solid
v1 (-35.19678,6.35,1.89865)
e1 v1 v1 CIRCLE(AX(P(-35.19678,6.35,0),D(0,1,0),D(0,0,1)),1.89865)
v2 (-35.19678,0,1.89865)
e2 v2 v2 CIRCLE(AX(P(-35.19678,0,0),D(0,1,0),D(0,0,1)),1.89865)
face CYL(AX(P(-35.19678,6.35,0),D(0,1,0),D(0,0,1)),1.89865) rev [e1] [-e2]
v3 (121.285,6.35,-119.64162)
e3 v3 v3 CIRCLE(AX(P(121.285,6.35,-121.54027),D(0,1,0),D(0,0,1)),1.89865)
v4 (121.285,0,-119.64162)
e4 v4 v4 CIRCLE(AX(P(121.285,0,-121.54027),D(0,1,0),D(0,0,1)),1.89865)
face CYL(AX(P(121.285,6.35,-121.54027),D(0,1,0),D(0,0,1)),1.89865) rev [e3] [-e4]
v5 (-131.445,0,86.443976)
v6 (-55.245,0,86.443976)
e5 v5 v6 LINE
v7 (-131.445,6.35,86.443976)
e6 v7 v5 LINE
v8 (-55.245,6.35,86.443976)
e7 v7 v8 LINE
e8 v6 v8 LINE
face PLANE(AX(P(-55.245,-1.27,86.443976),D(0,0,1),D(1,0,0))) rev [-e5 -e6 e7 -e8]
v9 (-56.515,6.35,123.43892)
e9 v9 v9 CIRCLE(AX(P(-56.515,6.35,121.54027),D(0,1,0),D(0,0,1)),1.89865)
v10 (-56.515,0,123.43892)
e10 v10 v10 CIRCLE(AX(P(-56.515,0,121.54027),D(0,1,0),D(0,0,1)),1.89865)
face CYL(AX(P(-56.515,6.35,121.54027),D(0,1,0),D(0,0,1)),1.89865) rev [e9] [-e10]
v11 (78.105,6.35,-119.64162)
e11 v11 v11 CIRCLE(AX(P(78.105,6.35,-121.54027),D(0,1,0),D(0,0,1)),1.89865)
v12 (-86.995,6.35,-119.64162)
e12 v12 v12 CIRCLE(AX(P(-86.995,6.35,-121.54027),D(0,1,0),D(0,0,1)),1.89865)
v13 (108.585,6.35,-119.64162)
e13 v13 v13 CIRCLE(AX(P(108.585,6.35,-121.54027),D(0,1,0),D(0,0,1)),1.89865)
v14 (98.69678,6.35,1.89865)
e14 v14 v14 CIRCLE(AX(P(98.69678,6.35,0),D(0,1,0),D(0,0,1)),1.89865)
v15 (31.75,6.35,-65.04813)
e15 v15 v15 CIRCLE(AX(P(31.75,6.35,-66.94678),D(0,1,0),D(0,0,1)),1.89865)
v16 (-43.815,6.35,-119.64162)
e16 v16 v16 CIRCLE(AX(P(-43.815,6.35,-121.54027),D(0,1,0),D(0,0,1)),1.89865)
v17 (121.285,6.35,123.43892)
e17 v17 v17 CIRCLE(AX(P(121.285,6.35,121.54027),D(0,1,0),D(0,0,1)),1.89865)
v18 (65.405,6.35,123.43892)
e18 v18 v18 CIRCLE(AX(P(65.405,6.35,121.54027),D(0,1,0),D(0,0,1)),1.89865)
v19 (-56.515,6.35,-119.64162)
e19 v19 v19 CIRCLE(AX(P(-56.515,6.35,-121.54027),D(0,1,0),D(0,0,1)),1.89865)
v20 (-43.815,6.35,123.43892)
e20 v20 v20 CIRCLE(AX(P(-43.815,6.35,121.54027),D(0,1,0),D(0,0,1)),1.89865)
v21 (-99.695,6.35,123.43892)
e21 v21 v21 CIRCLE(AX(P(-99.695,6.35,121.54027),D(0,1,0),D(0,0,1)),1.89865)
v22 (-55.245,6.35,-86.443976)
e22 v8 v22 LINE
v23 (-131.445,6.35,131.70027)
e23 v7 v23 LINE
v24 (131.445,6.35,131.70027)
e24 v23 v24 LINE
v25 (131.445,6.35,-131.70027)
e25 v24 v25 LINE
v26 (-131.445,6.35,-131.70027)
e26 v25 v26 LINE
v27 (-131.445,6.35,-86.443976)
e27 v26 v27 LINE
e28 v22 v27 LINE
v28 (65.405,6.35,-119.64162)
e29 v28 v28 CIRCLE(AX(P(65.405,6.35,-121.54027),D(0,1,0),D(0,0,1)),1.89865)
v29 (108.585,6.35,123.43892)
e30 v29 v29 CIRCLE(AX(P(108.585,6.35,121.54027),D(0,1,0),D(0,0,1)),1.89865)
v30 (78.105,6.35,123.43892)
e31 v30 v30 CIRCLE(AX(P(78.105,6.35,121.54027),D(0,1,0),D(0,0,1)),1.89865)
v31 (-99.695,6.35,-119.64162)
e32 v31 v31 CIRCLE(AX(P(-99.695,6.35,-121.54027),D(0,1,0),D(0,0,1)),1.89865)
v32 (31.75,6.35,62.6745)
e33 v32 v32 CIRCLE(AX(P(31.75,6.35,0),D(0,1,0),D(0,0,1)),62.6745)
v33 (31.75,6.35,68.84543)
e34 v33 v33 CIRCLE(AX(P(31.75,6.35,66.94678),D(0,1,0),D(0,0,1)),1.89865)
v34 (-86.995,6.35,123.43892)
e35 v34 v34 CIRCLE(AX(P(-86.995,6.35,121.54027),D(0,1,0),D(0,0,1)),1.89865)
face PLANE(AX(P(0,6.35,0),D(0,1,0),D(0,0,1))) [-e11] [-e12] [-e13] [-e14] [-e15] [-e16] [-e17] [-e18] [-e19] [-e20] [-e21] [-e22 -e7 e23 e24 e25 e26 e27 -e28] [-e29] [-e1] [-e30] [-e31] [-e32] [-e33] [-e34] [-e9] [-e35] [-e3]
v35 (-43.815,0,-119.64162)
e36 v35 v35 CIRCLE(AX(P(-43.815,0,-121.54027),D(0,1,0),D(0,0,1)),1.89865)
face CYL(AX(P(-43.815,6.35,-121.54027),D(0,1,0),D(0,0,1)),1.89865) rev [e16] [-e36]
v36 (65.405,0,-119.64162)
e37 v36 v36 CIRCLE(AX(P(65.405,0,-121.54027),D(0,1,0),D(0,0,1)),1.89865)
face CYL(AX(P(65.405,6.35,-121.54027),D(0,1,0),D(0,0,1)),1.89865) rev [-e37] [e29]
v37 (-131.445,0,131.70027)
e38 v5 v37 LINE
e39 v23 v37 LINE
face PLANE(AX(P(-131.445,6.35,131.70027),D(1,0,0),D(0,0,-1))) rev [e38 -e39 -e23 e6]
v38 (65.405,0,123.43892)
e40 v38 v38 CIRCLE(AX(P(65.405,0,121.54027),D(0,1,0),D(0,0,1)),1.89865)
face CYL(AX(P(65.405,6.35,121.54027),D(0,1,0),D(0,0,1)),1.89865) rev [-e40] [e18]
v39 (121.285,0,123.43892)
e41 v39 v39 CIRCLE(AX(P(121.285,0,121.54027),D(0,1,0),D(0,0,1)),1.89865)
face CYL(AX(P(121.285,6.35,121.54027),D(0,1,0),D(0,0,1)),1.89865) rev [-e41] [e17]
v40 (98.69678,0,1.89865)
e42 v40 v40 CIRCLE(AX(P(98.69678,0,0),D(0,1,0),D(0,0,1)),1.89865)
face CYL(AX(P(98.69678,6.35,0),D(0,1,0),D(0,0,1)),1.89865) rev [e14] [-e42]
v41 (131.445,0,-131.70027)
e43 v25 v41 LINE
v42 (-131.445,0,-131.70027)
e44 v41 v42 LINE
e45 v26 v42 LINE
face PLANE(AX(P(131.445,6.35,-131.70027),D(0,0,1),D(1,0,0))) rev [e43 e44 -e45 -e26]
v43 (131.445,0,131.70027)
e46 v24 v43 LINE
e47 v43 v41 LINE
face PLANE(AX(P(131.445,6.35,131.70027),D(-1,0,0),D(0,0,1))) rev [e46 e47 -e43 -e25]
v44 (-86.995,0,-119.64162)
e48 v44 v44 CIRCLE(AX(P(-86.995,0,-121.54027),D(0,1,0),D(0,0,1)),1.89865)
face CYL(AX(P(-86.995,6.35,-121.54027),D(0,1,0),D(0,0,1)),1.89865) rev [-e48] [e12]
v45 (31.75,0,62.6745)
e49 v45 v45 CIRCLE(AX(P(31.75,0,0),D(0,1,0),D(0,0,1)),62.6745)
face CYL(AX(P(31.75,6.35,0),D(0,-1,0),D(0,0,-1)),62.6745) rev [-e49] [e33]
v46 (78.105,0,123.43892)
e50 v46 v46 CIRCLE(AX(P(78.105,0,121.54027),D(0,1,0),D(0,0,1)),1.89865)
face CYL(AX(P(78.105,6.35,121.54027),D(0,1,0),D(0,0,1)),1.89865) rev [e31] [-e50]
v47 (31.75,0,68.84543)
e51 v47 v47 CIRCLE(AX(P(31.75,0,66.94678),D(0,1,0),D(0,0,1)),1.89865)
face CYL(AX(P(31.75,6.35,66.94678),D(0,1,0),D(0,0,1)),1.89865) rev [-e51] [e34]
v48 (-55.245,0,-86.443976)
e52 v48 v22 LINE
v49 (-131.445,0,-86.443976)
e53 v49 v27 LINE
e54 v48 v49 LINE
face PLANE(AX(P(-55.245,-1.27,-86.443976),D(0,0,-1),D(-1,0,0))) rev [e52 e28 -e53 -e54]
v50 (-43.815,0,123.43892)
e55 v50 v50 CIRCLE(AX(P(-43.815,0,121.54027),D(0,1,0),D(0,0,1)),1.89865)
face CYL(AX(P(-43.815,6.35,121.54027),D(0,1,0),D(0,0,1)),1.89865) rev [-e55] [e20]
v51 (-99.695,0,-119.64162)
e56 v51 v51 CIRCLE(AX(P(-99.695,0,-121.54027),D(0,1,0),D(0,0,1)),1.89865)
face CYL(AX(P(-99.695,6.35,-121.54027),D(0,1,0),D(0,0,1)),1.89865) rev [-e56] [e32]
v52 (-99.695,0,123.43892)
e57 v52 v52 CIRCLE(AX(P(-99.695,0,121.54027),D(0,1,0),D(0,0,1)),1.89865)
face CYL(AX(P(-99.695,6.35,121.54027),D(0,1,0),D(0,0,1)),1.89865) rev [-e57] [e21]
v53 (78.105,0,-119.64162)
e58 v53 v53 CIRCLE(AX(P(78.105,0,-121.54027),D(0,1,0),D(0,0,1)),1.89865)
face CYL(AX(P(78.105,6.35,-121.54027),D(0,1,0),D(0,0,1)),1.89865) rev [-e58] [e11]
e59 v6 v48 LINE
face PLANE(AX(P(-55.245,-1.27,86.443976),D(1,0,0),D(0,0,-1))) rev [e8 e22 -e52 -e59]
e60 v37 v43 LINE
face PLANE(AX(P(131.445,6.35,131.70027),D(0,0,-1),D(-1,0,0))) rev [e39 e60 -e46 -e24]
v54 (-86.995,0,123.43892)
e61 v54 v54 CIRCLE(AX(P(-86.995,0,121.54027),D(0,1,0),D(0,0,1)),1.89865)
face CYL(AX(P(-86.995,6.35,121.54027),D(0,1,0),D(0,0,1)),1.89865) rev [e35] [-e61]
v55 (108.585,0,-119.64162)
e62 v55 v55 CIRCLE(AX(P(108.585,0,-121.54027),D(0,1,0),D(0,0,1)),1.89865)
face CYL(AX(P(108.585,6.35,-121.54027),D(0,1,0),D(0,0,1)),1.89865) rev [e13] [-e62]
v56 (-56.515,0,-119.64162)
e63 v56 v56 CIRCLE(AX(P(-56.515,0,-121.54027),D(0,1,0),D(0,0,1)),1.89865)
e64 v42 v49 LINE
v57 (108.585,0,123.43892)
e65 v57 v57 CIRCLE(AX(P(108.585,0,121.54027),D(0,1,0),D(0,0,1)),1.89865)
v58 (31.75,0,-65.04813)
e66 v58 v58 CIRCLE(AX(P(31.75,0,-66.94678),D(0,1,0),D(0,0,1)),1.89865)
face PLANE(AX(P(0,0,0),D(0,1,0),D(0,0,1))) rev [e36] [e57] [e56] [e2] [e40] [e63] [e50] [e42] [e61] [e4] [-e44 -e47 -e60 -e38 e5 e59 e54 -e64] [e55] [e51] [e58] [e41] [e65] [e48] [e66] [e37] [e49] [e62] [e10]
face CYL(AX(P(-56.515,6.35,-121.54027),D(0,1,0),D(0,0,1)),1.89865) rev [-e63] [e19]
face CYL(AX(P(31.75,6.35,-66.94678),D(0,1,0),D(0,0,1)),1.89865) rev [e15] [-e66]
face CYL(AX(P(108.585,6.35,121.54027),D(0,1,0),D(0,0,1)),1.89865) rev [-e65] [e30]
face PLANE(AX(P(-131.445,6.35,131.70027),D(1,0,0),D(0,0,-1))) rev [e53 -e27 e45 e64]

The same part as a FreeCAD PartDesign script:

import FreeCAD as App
import Part
import Sketcher

V = App.Vector
Q = App.Units.Quantity

doc = App.newDocument("Part")
body = doc.addObject("PartDesign::Body", "Body")

# Sketch on XZ plane
sketch1 = doc.addObject("Sketcher::SketchObject", "Sketch")
body.addObject(sketch1)
sketch1.AttachmentSupport = (doc.XZ_Plane, [""])
sketch1.MapMode = "FlatFace"
sketch1.addGeometry([
    Part.LineSegment(V(-131, -132, 0), V(-131, 132, 0)),  # 0
    Part.LineSegment(V(-131, 132, 0), V(131, 132, 0)),  # 1
    Part.LineSegment(V(131, 132, 0), V(131, -132, 0)),  # 2
    Part.LineSegment(V(131, -132, 0), V(-131, -132, 0)),  # 3
    Part.Circle(V(32, 0, 0), V(0, 0, 1), 63),  # 4
], False)
sketch1.addConstraint([
    Sketcher.Constraint("Coincident", 0, 2, 1, 1),
    Sketcher.Constraint("Coincident", 1, 2, 2, 1),
    Sketcher.Constraint("Coincident", 2, 2, 3, 1),
    Sketcher.Constraint("Coincident", 3, 2, 0, 1),
    Sketcher.Constraint("Vertical", 0),
    Sketcher.Constraint("Horizontal", 1),
    Sketcher.Constraint("Vertical", 2),
    Sketcher.Constraint("Horizontal", 3),
    Sketcher.Constraint("Symmetric", 0, 2, 2, 2, -1, 1),
    Sketcher.Constraint("PointOnObject", 4, 3, -1),
    Sketcher.Constraint("Diameter", 4, Q("4.935 in")),
    Sketcher.Constraint("DistanceX", 1, 1, 1, 2, Q("10.35 in")),
    Sketcher.Constraint("DistanceX", -1, 1, 4, 3, Q("1.25 in")),
    Sketcher.Constraint("DistanceY", 0, 1, 0, 2, Q("10.3701 in")),
])
pad1 = doc.addObject("PartDesign::Pad", "Pad")
body.addObject(pad1)
pad1.Profile = sketch1
pad1.Length = Q("0.25 in")
pad1.Reversed = True

# Sketch on XZ plane
sketch2 = doc.addObject("Sketcher::SketchObject", "Sketch001")
body.addObject(sketch2)
sketch2.AttachmentSupport = (doc.XZ_Plane, [""])
sketch2.MapMode = "FlatFace"
sketch2.AttachmentOffset = App.Placement(V(0, 0, -0.25 * 25.4), App.Rotation())
sketch2.addGeometry([
    Part.Circle(V(31.8, -66.9, 0), V(0, 0, 1), 1.9),
    Part.Circle(V(-35.2, 0, 0), V(0, 0, 1), 1.9),
    Part.Circle(V(98.7, 0, 0), V(0, 0, 1), 1.9),
    Part.Circle(V(31.8, 66.9, 0), V(0, 0, 1), 1.9),
], False)
sketch2.addConstraint([
    Sketcher.Constraint("Equal", 0, 1),
    Sketcher.Constraint("Equal", 1, 2),
    Sketcher.Constraint("Equal", 2, 3),
    Sketcher.Constraint("Symmetric", 0, 3, 3, 3, -1),
    Sketcher.Constraint("PointOnObject", 1, 3, -1),
    Sketcher.Constraint("PointOnObject", 2, 3, -1),
    Sketcher.Constraint("Diameter", 0, Q("0.1495 in")),
    Sketcher.Constraint("DistanceX", -1, 1, 0, 3, Q("1.25 in")),
    Sketcher.Constraint("DistanceY", 0, 3, -1, 1, Q("2.6357 in")),
    Sketcher.Constraint("DistanceX", 1, 3, -1, 1, Q("1.3857 in")),
    Sketcher.Constraint("DistanceX", -1, 1, 2, 3, Q("3.8857 in")),
])
doc.recompute()
hole = doc.addObject("PartDesign::Hole", "Hole")
body.addObject(hole)
hole.Profile = sketch2
hole.ThreadType = "None"
hole.Diameter = Q("0.1495 in")
hole.DepthType = "ThroughAll"
hole.Reversed = True

# Sketch on XZ plane
sketch3 = doc.addObject("Sketcher::SketchObject", "Sketch002")
body.addObject(sketch3)
sketch3.AttachmentSupport = (doc.XZ_Plane, [""])
sketch3.MapMode = "FlatFace"
sketch3.AttachmentOffset = App.Placement(V(0, 0, -0.25 * 25.4), App.Rotation())
sketch3.addGeometry([
    Part.Circle(V(121.3, 121.5, 0), V(0, 0, 1), 1.9),
    Part.Circle(V(108.6, 121.5, 0), V(0, 0, 1), 1.9),
    Part.Circle(V(78.1, 121.5, 0), V(0, 0, 1), 1.9),
    Part.Circle(V(65.4, 121.5, 0), V(0, 0, 1), 1.9),
], False)
sketch3.addConstraint([
    Sketcher.Constraint("Equal", 0, 1),
    Sketcher.Constraint("Equal", 1, 2),
    Sketcher.Constraint("Equal", 2, 3),
    Sketcher.Constraint("Horizontal", 0, 3, 1, 3),
    Sketcher.Constraint("Horizontal", 1, 3, 2, 3),
    Sketcher.Constraint("Horizontal", 2, 3, 3, 3),
    Sketcher.Constraint("Diameter", 0, Q("0.1495 in")),
    Sketcher.Constraint("DistanceX", 1, 3, 0, 3, Q("0.5 in")),
    Sketcher.Constraint("DistanceX", 2, 3, 1, 3, Q("1.2 in")),
    Sketcher.Constraint("DistanceX", 3, 3, 2, 3, Q("0.5 in")),
    Sketcher.Constraint("DistanceX", -1, 1, 0, 3, Q("4.775 in")),
    Sketcher.Constraint("DistanceY", -1, 1, 0, 3, Q("121.54027 mm")),
])
doc.recompute()
hole2 = doc.addObject("PartDesign::Hole", "Hole001")
body.addObject(hole2)
hole2.Profile = sketch3
hole2.ThreadType = "None"
hole2.Diameter = Q("0.1495 in")
hole2.DepthType = "ThroughAll"
hole2.Reversed = True
doc.recompute()

mirrored = doc.addObject("PartDesign::Mirrored", "Mirrored")
body.addObject(mirrored)
mirrored.Originals = [hole2]
mirrored.MirrorPlane = (doc.XY_Plane, [""])
body.Tip = mirrored

# Sketch on XZ plane
sketch4 = doc.addObject("Sketcher::SketchObject", "Sketch003")
body.addObject(sketch4)
sketch4.AttachmentSupport = (doc.XZ_Plane, [""])
sketch4.MapMode = "FlatFace"
sketch4.AttachmentOffset = App.Placement(V(0, 0, -0.25 * 25.4), App.Rotation())
sketch4.addGeometry([
    Part.Circle(V(-43.8, 121.5, 0), V(0, 0, 1), 1.9),
    Part.Circle(V(-56.5, 121.5, 0), V(0, 0, 1), 1.9),
    Part.Circle(V(-87, 121.5, 0), V(0, 0, 1), 1.9),
    Part.Circle(V(-99.7, 121.5, 0), V(0, 0, 1), 1.9),
], False)
sketch4.addConstraint([
    Sketcher.Constraint("Equal", 0, 1),
    Sketcher.Constraint("Equal", 1, 2),
    Sketcher.Constraint("Equal", 2, 3),
    Sketcher.Constraint("Horizontal", 0, 3, 1, 3),
    Sketcher.Constraint("Horizontal", 1, 3, 2, 3),
    Sketcher.Constraint("Horizontal", 2, 3, 3, 3),
    Sketcher.Constraint("Diameter", 0, Q("0.1495 in")),
    Sketcher.Constraint("DistanceX", 1, 3, 0, 3, Q("0.5 in")),
    Sketcher.Constraint("DistanceX", 2, 3, 1, 3, Q("1.2 in")),
    Sketcher.Constraint("DistanceX", 3, 3, 2, 3, Q("0.5 in")),
    Sketcher.Constraint("DistanceX", 0, 3, -1, 1, Q("1.725 in")),
    Sketcher.Constraint("DistanceY", -1, 1, 0, 3, Q("121.54027 mm")),
])
doc.recompute()
hole3 = doc.addObject("PartDesign::Hole", "Hole002")
body.addObject(hole3)
hole3.Profile = sketch4
hole3.ThreadType = "None"
hole3.Diameter = Q("0.1495 in")
hole3.DepthType = "ThroughAll"
hole3.Reversed = True
doc.recompute()

mirrored2 = doc.addObject("PartDesign::Mirrored", "Mirrored001")
body.addObject(mirrored2)
mirrored2.Originals = [hole3]
mirrored2.MirrorPlane = (doc.XY_Plane, [""])
body.Tip = mirrored2

# Sketch on XZ plane
sketch5 = doc.addObject("Sketcher::SketchObject", "Sketch004")
body.addObject(sketch5)
sketch5.AttachmentSupport = (doc.XZ_Plane, [""])
sketch5.MapMode = "FlatFace"
sketch5.AttachmentOffset = App.Placement(V(0, 0, -0.25 * 25.4), App.Rotation())
sketch5.addGeometry([
    Part.LineSegment(V(-131, -86, 0), V(-131, 86, 0)),
    Part.LineSegment(V(-131, 86, 0), V(-55, 86, 0)),
    Part.LineSegment(V(-55, 86, 0), V(-55, -86, 0)),
    Part.LineSegment(V(-55, -86, 0), V(-131, -86, 0)),
], False)
sketch5.addConstraint([
    Sketcher.Constraint("Coincident", 0, 2, 1, 1),
    Sketcher.Constraint("Coincident", 1, 2, 2, 1),
    Sketcher.Constraint("Coincident", 2, 2, 3, 1),
    Sketcher.Constraint("Coincident", 3, 2, 0, 1),
    Sketcher.Constraint("Vertical", 0),
    Sketcher.Constraint("Horizontal", 1),
    Sketcher.Constraint("Vertical", 2),
    Sketcher.Constraint("Horizontal", 3),
    Sketcher.Constraint("DistanceX", 1, 1, 1, 2, Q("3 in")),
    Sketcher.Constraint("DistanceX", 0, 2, -1, 1, Q("5.175 in")),
    Sketcher.Constraint("DistanceY", 0, 1, 0, 2, Q("172.887952 mm")),
    Sketcher.Constraint("DistanceY", -1, 1, 0, 2, Q("86.443976 mm")),
])
pocket1 = doc.addObject("PartDesign::Pocket", "Pocket")
body.addObject(pocket1)
pocket1.Profile = sketch5
pocket1.Length = Q("0.3 in")
pocket1.Reversed = True

doc.recompute()
